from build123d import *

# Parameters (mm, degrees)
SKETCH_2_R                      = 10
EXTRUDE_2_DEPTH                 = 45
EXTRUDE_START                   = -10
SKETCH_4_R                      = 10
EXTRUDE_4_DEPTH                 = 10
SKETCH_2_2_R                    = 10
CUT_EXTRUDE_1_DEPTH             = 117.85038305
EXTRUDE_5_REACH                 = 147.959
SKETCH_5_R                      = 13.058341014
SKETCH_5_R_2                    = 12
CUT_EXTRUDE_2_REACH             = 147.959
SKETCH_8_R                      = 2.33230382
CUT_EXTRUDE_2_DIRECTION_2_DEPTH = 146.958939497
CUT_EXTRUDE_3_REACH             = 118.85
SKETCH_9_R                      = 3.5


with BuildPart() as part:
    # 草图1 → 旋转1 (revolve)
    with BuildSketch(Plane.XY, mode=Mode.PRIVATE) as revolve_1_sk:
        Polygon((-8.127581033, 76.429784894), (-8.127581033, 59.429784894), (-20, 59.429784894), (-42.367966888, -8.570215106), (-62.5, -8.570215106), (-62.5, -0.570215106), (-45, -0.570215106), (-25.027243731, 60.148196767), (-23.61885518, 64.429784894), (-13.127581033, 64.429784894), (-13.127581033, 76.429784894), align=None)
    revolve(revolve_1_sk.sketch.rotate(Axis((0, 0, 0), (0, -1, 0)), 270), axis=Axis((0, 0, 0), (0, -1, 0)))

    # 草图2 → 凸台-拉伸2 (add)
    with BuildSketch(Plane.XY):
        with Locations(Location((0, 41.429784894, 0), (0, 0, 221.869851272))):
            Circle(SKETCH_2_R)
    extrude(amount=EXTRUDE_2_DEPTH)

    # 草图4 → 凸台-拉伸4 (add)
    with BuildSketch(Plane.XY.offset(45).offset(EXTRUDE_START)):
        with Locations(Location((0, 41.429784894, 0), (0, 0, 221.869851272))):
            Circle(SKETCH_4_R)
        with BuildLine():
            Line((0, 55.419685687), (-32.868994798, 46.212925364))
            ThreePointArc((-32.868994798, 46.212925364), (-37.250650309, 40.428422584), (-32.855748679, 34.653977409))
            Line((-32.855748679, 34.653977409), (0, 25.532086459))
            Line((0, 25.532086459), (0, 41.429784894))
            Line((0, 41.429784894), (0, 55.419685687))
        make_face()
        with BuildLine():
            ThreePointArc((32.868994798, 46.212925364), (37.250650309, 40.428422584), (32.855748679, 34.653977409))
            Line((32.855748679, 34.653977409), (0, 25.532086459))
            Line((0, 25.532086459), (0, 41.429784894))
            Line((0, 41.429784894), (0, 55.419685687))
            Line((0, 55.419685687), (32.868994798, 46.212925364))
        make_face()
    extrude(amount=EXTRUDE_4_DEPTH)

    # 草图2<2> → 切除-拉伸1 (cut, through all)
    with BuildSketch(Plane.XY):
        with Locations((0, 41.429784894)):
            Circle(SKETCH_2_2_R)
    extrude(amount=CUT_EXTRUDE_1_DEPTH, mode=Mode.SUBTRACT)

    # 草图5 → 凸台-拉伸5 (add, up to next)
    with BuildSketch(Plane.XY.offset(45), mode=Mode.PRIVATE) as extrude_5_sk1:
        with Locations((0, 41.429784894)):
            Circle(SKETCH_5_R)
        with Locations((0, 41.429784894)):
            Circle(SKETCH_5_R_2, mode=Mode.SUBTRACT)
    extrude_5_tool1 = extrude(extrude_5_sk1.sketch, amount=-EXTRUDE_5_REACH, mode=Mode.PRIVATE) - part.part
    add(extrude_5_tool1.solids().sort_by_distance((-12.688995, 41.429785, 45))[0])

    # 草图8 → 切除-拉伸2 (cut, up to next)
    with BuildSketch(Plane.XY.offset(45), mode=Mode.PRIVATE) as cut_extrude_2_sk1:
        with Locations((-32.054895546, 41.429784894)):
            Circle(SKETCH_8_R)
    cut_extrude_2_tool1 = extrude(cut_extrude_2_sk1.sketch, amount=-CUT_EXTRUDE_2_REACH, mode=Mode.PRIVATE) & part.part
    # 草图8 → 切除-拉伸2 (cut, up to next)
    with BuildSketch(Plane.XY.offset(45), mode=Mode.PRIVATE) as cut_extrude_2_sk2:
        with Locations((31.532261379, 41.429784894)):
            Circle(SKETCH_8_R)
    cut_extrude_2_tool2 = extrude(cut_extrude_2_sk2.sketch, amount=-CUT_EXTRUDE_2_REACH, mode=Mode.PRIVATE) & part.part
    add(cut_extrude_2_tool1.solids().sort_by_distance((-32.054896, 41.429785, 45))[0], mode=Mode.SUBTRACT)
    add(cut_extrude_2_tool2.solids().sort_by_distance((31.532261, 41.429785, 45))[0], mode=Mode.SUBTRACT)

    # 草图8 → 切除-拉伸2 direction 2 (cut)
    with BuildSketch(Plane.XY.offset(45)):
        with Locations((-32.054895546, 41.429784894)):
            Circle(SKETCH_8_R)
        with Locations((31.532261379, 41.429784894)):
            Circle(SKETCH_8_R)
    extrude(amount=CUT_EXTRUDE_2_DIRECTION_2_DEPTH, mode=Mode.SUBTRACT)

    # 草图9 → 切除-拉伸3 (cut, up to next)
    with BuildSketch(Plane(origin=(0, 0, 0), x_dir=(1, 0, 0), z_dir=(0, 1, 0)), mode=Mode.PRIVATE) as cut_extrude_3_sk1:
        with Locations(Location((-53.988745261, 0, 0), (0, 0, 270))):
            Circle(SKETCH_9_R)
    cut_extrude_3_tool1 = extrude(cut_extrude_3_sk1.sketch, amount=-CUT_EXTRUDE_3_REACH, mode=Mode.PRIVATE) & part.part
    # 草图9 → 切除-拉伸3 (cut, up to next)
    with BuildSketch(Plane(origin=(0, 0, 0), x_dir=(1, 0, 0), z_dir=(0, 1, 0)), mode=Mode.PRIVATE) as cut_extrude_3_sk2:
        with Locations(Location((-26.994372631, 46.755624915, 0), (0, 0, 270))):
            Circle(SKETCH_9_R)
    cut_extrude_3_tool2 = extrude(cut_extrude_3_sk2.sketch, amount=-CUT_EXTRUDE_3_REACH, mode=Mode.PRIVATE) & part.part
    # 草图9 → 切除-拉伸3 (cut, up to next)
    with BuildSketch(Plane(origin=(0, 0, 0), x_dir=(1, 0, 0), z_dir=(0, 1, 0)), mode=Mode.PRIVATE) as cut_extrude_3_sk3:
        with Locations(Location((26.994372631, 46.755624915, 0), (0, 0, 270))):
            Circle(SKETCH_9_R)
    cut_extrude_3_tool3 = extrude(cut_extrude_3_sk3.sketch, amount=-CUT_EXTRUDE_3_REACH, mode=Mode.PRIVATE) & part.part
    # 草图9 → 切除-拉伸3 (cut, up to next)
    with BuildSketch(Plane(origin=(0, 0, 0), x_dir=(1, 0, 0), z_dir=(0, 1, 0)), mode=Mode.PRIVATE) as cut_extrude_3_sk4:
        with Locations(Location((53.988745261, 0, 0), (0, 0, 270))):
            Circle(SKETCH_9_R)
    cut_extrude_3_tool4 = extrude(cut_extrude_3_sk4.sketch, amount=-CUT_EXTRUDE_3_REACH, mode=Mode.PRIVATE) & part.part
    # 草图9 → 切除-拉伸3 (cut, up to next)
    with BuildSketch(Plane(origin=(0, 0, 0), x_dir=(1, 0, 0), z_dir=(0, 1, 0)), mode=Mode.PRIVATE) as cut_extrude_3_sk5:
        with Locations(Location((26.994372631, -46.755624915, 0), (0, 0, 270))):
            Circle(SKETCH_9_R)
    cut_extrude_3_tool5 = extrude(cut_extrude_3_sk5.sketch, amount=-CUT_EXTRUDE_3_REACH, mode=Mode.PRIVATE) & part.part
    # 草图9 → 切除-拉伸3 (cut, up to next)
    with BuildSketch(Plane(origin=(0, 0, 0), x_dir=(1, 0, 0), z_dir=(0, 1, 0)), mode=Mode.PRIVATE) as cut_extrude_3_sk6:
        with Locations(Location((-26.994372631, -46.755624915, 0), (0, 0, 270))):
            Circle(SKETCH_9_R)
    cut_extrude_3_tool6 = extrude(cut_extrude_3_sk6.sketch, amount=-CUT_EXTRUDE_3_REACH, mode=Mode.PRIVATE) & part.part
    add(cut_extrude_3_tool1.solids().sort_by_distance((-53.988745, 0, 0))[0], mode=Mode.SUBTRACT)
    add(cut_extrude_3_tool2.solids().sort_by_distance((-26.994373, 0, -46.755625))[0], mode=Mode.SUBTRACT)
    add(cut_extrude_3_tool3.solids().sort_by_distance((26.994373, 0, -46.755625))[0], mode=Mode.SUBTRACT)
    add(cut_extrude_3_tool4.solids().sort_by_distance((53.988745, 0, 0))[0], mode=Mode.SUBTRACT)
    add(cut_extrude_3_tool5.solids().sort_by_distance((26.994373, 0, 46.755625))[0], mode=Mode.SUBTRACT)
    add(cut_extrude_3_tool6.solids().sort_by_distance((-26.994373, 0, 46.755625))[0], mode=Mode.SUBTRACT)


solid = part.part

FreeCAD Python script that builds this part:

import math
import FreeCAD as App
import Part
import Sketcher
from FreeCAD import Vector

doc = App.newDocument("Part")
body = doc.addObject("PartDesign::Body", "Body")

sketch1 = doc.addObject("Sketcher::SketchObject", "Sketch")
body.addObject(sketch1)
sketch1.AttachmentSupport = (doc.XY_Plane, [""])
sketch1.MapMode = "FlatFace"
sketch1.addGeometry(Part.LineSegment(Vector(-8.1, 59.4, 0), Vector(-8.1, 76.4, 0)), False)
sketch1.addGeometry(Part.LineSegment(Vector(-8.1, 76.4, 0), Vector(-13.1, 76.4, 0)), False)
sketch1.addGeometry(Part.LineSegment(Vector(-13.1, 76.4, 0), Vector(-13.1, 64.4, 0)), False)
sketch1.addGeometry(Part.LineSegment(Vector(-13.1, 64.4, 0), Vector(-23.6, 64.4, 0)), False)
sketch1.addGeometry(Part.LineSegment(Vector(-23.6, 64.4, 0), Vector(-25, 60.1, 0)), False)
sketch1.addGeometry(Part.LineSegment(Vector(-25, 60.1, 0), Vector(-45, -0.6, 0)), False)
sketch1.addGeometry(Part.LineSegment(Vector(-45, -0.6, 0), Vector(-62.5, -0.6, 0)), False)
sketch1.addGeometry(Part.LineSegment(Vector(-62.5, -0.6, 0), Vector(-62.5, -8.6, 0)), False)
sketch1.addGeometry(Part.LineSegment(Vector(-62.5, -8.6, 0), Vector(-42.4, -8.6, 0)), False)
sketch1.addGeometry(Part.LineSegment(Vector(-42.4, -8.6, 0), Vector(-20, 59.4, 0)), False)
sketch1.addGeometry(Part.LineSegment(Vector(-20, 59.4, 0), Vector(-8.1, 59.4, 0)), False)
sketch1.addConstraint(Sketcher.Constraint("Coincident", 0, 2, 1, 1))
sketch1.addConstraint(Sketcher.Constraint("Coincident", 1, 2, 2, 1))
sketch1.addConstraint(Sketcher.Constraint("Coincident", 2, 2, 3, 1))
sketch1.addConstraint(Sketcher.Constraint("Coincident", 3, 2, 4, 1))
sketch1.addConstraint(Sketcher.Constraint("Coincident", 4, 2, 5, 1))
sketch1.addConstraint(Sketcher.Constraint("Coincident", 5, 2, 6, 1))
sketch1.addConstraint(Sketcher.Constraint("Coincident", 6, 2, 7, 1))
sketch1.addConstraint(Sketcher.Constraint("Coincident", 7, 2, 8, 1))
sketch1.addConstraint(Sketcher.Constraint("Coincident", 8, 2, 9, 1))
sketch1.addConstraint(Sketcher.Constraint("Coincident", 9, 2, 10, 1))
sketch1.addConstraint(Sketcher.Constraint("Coincident", 10, 2, 0, 1))
sketch1.addConstraint(Sketcher.Constraint("Vertical", 0))
sketch1.addConstraint(Sketcher.Constraint("Horizontal", 1))
sketch1.addConstraint(Sketcher.Constraint("Vertical", 2))
sketch1.addConstraint(Sketcher.Constraint("Horizontal", 3))
sketch1.addConstraint(Sketcher.Constraint("Horizontal", 6))
sketch1.addConstraint(Sketcher.Constraint("Vertical", 7))
sketch1.addConstraint(Sketcher.Constraint("Horizontal", 8))
sketch1.addConstraint(Sketcher.Constraint("Horizontal", 10))
sketch1.addConstraint(Sketcher.Constraint("Parallel", 4, 5))
sketch1.addConstraint(Sketcher.Constraint("Parallel", 5, 9))
sketch1.addConstraint(Sketcher.Constraint("DistanceX", 1, 2, 1, 1, 5.0))
sketch1.addConstraint(Sketcher.Constraint("DistanceY", 0, 1, 0, 2, 17.0))
sketch1.addConstraint(Sketcher.Constraint("DistanceY", 2, 2, 2, 1, 12.0))
sketch1.addConstraint(Sketcher.Constraint("DistanceY", 7, 2, 7, 1, 8.0))
sketch1.addConstraint(Sketcher.Constraint("DistanceX", 6, 2, 6, 1, 17.5))
sketch1.addConstraint(Sketcher.Constraint("DistanceX", 5, 2, -1, 1, 45.0))
sketch1.addConstraint(Sketcher.Constraint("DistanceX", 9, 2, -1, 1, 20.0))
sketch1.addConstraint(Sketcher.Constraint("DistanceY", 5, 2, 3, 2, 65.0))
sketch1.addConstraint(Sketcher.Constraint("DistanceX", 10, 1, 10, 2, 11.872419))
sketch1.addConstraint(Sketcher.Constraint("Distance", 4, 4.507278))
sketch1.addConstraint(Sketcher.Constraint("DistanceX", 3, 2, 3, 1, 10.491274))
sketch1.addConstraint(Sketcher.Constraint("DistanceY", -1, 1, 0, 2, 76.429785))
revolution = doc.addObject("PartDesign::Revolution", "Revolution")
body.addObject(revolution)
revolution.Profile = sketch1
revolution.ReferenceAxis = (sketch1, ["V_Axis"])
revolution.Angle = 360

sketch2 = doc.addObject("Sketcher::SketchObject", "Sketch001")
body.addObject(sketch2)
sketch2.AttachmentSupport = (doc.XY_Plane, [""])
sketch2.MapMode = "FlatFace"
sketch2.addGeometry(Part.Circle(Vector(0, 41, 0), Vector(0, 0, 1), 10), False)
sketch2.addConstraint(Sketcher.Constraint("PointOnObject", 0, 3, -2))
sketch2.addConstraint(Sketcher.Constraint("Diameter", 0, 20.0))
sketch2.addConstraint(Sketcher.Constraint("DistanceY", -1, 1, 0, 3, 41.429785))
pad1 = doc.addObject("PartDesign::Pad", "Pad")
body.addObject(pad1)
pad1.Profile = sketch2
pad1.Length = 45

sketch3 = doc.addObject("Sketcher::SketchObject", "Sketch002")
body.addObject(sketch3)
sketch3.AttachmentSupport = (doc.XY_Plane, [""])
sketch3.MapMode = "FlatFace"
sketch3.AttachmentOffset = App.Placement(Vector(0, 0, 35), App.Rotation())
sketch3.addGeometry(Part.LineSegment(Vector(-33, 35, 0), Vector(0, 26, 0)), False)
sketch3.addGeometry(Part.LineSegment(Vector(0, 26, 0), Vector(33, 35, 0)), False)
sketch3.addGeometry(Part.ArcOfCircle(Part.Circle(Vector(31, 40, 0), Vector(0, 0, 1), 6), math.radians(-74), math.radians(74)), False)
sketch3.addGeometry(Part.LineSegment(Vector(33, 46, 0), Vector(0, 55, 0)), False)
sketch3.addGeometry(Part.LineSegment(Vector(0, 55, 0), Vector(-33, 46, 0)), False)
sketch3.addGeometry(Part.ArcOfCircle(Part.Circle(Vector(-31, 40, 0), Vector(0, 0, 1), 6), math.radians(106), math.radians(254)), False)
sketch3.addConstraint(Sketcher.Constraint("Coincident", 0, 2, 1, 1))
sketch3.addConstraint(Sketcher.Constraint("Tangent", 1, 2, 2, 1))
sketch3.addConstraint(Sketcher.Constraint("Tangent", 2, 2, 3, 1))
sketch3.addConstraint(Sketcher.Constraint("Coincident", 3, 2, 4, 1))
sketch3.addConstraint(Sketcher.Constraint("Tangent", 4, 2, 5, 1))
sketch3.addConstraint(Sketcher.Constraint("Tangent", 5, 2, 0, 1))
sketch3.addConstraint(Sketcher.Constraint("Equal", 2, 5))
sketch3.addConstraint(Sketcher.Constraint("Symmetric", 2, 3, 5, 3, -2))
sketch3.addConstraint(Sketcher.Constraint("PointOnObject", 0, 2, -2))
sketch3.addConstraint(Sketcher.Constraint("PointOnObject", 3, 2, -2))
sketch3.addConstraint(Sketcher.Constraint("Radius", 2, 6.0))
sketch3.addConstraint(Sketcher.Constraint("DistanceY", -1, 1, 2, 3, 40.435298))
sketch3.addConstraint(Sketcher.Constraint("DistanceY", 0, 2, 3, 2, 29.887599))
sketch3.addConstraint(Sketcher.Constraint("Distance", 0, 34.098521))
sketch3.addConstraint(Sketcher.Constraint("DistanceX", -1, 1, 1, 2, 32.855749))
pad2 = doc.addObject("PartDesign::Pad", "Pad001")
body.addObject(pad2)
pad2.Profile = sketch3
pad2.Length = 10

sketch4 = doc.addObject("Sketcher::SketchObject", "Sketch003")
body.addObject(sketch4)
sketch4.AttachmentSupport = (doc.XY_Plane, [""])
sketch4.MapMode = "FlatFace"
sketch4.addGeometry(Part.Circle(Vector(0, 41, 0), Vector(0, 0, 1), 10), False)
sketch4.addConstraint(Sketcher.Constraint("PointOnObject", 0, 3, -2))
sketch4.addConstraint(Sketcher.Constraint("Diameter", 0, 20.0))
sketch4.addConstraint(Sketcher.Constraint("DistanceY", -1, 1, 0, 3, 41.429785))
pocket1 = doc.addObject("PartDesign::Pocket", "Pocket")
body.addObject(pocket1)
pocket1.Profile = sketch4
pocket1.Type = "ThroughAll"
pocket1.Reversed = True

sketch5 = doc.addObject("Sketcher::SketchObject", "Sketch004")
body.addObject(sketch5)
sketch5.AttachmentSupport = (doc.XY_Plane, [""])
sketch5.MapMode = "FlatFace"
sketch5.AttachmentOffset = App.Placement(Vector(0, 0, 45), App.Rotation())
sketch5.addGeometry(Part.Circle(Vector(0, 41, 0), Vector(0, 0, 1), 13), False)
sketch5.addGeometry(Part.Circle(Vector(0, 41, 0), Vector(0, 0, 1), 12), False)
sketch5.addConstraint(Sketcher.Constraint("Coincident", 1, 3, 0, 3))
sketch5.addConstraint(Sketcher.Constraint("PointOnObject", 0, 3, -2))
sketch5.addConstraint(Sketcher.Constraint("Diameter", 1, 24.0))
sketch5.addConstraint(Sketcher.Constraint("Diameter", 0, 26.116682))
sketch5.addConstraint(Sketcher.Constraint("DistanceY", -1, 1, 0, 3, 41.429785))
pad3 = doc.addObject("PartDesign::Pad", "Pad002")
body.addObject(pad3)
pad3.Profile = sketch5
pad3.Type = "UpToFirst"
pad3.Reversed = True

sketch6 = doc.addObject("Sketcher::SketchObject", "Sketch005")
body.addObject(sketch6)
sketch6.AttachmentSupport = (doc.XY_Plane, [""])
sketch6.MapMode = "FlatFace"
sketch6.AttachmentOffset = App.Placement(Vector(0, 0, 45), App.Rotation())
sketch6.addGeometry(Part.Circle(Vector(-32.1, 41.4, 0), Vector(0, 0, 1), 2.3), False)
sketch6.addConstraint(Sketcher.Constraint("Diameter", 0, 4.664608))
sketch6.addConstraint(Sketcher.Constraint("DistanceX", 0, 3, -1, 1, 32.054896))
sketch6.addConstraint(Sketcher.Constraint("DistanceY", -1, 1, 0, 3, 41.429785))
pocket2 = doc.addObject("PartDesign::Pocket", "Pocket001")
body.addObject(pocket2)
pocket2.Profile = sketch6
pocket2.Type = "UpToFirst"

sketch7 = doc.addObject("Sketcher::SketchObject", "Sketch006")
body.addObject(sketch7)
sketch7.AttachmentSupport = (doc.XY_Plane, [""])
sketch7.MapMode = "FlatFace"
sketch7.AttachmentOffset = App.Placement(Vector(0, 0, 45), App.Rotation())
sketch7.addGeometry(Part.Circle(Vector(31.5, 41.4, 0), Vector(0, 0, 1), 2.3), False)
sketch7.addConstraint(Sketcher.Constraint("Diameter", 0, 4.664608))
sketch7.addConstraint(Sketcher.Constraint("DistanceX", -1, 1, 0, 3, 31.532261))
sketch7.addConstraint(Sketcher.Constraint("DistanceY", -1, 1, 0, 3, 41.429785))
pocket3 = doc.addObject("PartDesign::Pocket", "Pocket002")
body.addObject(pocket3)
pocket3.Profile = sketch7
pocket3.Type = "UpToFirst"

sketch8 = doc.addObject("Sketcher::SketchObject", "Sketch007")
body.addObject(sketch8)
sketch8.AttachmentSupport = (doc.XY_Plane, [""])
sketch8.MapMode = "FlatFace"
sketch8.AttachmentOffset = App.Placement(Vector(0, 0, 45), App.Rotation())
sketch8.addGeometry(Part.Circle(Vector(-32.1, 41.4, 0), Vector(0, 0, 1), 2.3), False)
sketch8.addGeometry(Part.Circle(Vector(31.5, 41.4, 0), Vector(0, 0, 1), 2.3), False)
sketch8.addConstraint(Sketcher.Constraint("Equal", 0, 1))
sketch8.addConstraint(Sketcher.Constraint("Horizontal", 0, 3, 1, 3))
sketch8.addConstraint(Sketcher.Constraint("Diameter", 0, 4.664608))
sketch8.addConstraint(Sketcher.Constraint("DistanceX", -1, 1, 1, 3, 31.532261))
sketch8.addConstraint(Sketcher.Constraint("DistanceX", 0, 3, -1, 1, 32.054896))
sketch8.addConstraint(Sketcher.Constraint("DistanceY", -1, 1, 0, 3, 41.429785))
pocket4 = doc.addObject("PartDesign::Pocket", "Pocket003")
body.addObject(pocket4)
pocket4.Profile = sketch8
pocket4.Length = 146.958939
pocket4.Reversed = True

sketch9 = doc.addObject("Sketcher::SketchObject", "Sketch008")
body.addObject(sketch9)
sketch9.AttachmentSupport = (doc.XZ_Plane, [""])
sketch9.MapMode = "FlatFace"
sketch9.addGeometry(Part.Circle(Vector(-54, 0, 0), Vector(0, 0, 1), 3.5), False)
sketch9.addConstraint(Sketcher.Constraint("PointOnObject", 0, 3, -1))
sketch9.addConstraint(Sketcher.Constraint("Diameter", 0, 7.0))
sketch9.addConstraint(Sketcher.Constraint("DistanceX", 0, 3, -1, 1, 53.988745))
pocket5 = doc.addObject("PartDesign::Pocket", "Pocket004")
body.addObject(pocket5)
pocket5.Profile = sketch9
pocket5.Length = 8.570215
pocket5.Reversed = True

sketch10 = doc.addObject("Sketcher::SketchObject", "Sketch009")
body.addObject(sketch10)
sketch10.AttachmentSupport = (doc.XZ_Plane, [""])
sketch10.MapMode = "FlatFace"
sketch10.addGeometry(Part.Circle(Vector(-27, -46.8, 0), Vector(0, 0, 1), 3.5), False)
sketch10.addConstraint(Sketcher.Constraint("Diameter", 0, 7.0))
sketch10.addConstraint(Sketcher.Constraint("DistanceX", 0, 3, -1, 1, 26.994373))
sketch10.addConstraint(Sketcher.Constraint("DistanceY", 0, 3, -1, 1, 46.755625))
pocket6 = doc.addObject("PartDesign::Pocket", "Pocket005")
body.addObject(pocket6)
pocket6.Profile = sketch10
pocket6.Length = 8.570215
pocket6.Reversed = True

sketch11 = doc.addObject("Sketcher::SketchObject", "Sketch010")
body.addObject(sketch11)
sketch11.AttachmentSupport = (doc.XZ_Plane, [""])
sketch11.MapMode = "FlatFace"
sketch11.addGeometry(Part.Circle(Vector(27, -46.8, 0), Vector(0, 0, 1), 3.5), False)
sketch11.addConstraint(Sketcher.Constraint("Diameter", 0, 7.0))
sketch11.addConstraint(Sketcher.Constraint("DistanceX", -1, 1, 0, 3, 26.994373))
sketch11.addConstraint(Sketcher.Constraint("DistanceY", 0, 3, -1, 1, 46.755625))
pocket7 = doc.addObject("PartDesign::Pocket", "Pocket006")
body.addObject(pocket7)
pocket7.Profile = sketch11
pocket7.Length = 8.570215
pocket7.Reversed = True

sketch12 = doc.addObject("Sketcher::SketchObject", "Sketch011")
body.addObject(sketch12)
sketch12.AttachmentSupport = (doc.XZ_Plane, [""])
sketch12.MapMode = "FlatFace"
sketch12.addGeometry(Part.Circle(Vector(54, 0, 0), Vector(0, 0, 1), 3.5), False)
sketch12.addConstraint(Sketcher.Constraint("PointOnObject", 0, 3, -1))
sketch12.addConstraint(Sketcher.Constraint("Diameter", 0, 7.0))
sketch12.addConstraint(Sketcher.Constraint("DistanceX", -1, 1, 0, 3, 53.988745))
pocket8 = doc.addObject("PartDesign::Pocket", "Pocket007")
body.addObject(pocket8)
pocket8.Profile = sketch12
pocket8.Length = 8.570215
pocket8.Reversed = True

sketch13 = doc.addObject("Sketcher::SketchObject", "Sketch012")
body.addObject(sketch13)
sketch13.AttachmentSupport = (doc.XZ_Plane, [""])
sketch13.MapMode = "FlatFace"
sketch13.addGeometry(Part.Circle(Vector(27, 46.8, 0), Vector(0, 0, 1), 3.5), False)
sketch13.addConstraint(Sketcher.Constraint("Diameter", 0, 7.0))
sketch13.addConstraint(Sketcher.Constraint("DistanceX", -1, 1, 0, 3, 26.994373))
sketch13.addConstraint(Sketcher.Constraint("DistanceY", -1, 1, 0, 3, 46.755625))
pocket9 = doc.addObject("PartDesign::Pocket", "Pocket008")
body.addObject(pocket9)
pocket9.Profile = sketch13
pocket9.Length = 8.570215
pocket9.Reversed = True

sketch14 = doc.addObject("Sketcher::SketchObject", "Sketch013")
body.addObject(sketch14)
sketch14.AttachmentSupport = (doc.XZ_Plane, [""])
sketch14.MapMode = "FlatFace"
sketch14.addGeometry(Part.Circle(Vector(-27, 46.8, 0), Vector(0, 0, 1), 3.5), False)
sketch14.addConstraint(Sketcher.Constraint("Diameter", 0, 7.0))
sketch14.addConstraint(Sketcher.Constraint("DistanceX", 0, 3, -1, 1, 26.994373))
sketch14.addConstraint(Sketcher.Constraint("DistanceY", -1, 1, 0, 3, 46.755625))
pocket10 = doc.addObject("PartDesign::Pocket", "Pocket009")
body.addObject(pocket10)
pocket10.Profile = sketch14
pocket10.Length = 8.570215
pocket10.Reversed = True

doc.recompute()
